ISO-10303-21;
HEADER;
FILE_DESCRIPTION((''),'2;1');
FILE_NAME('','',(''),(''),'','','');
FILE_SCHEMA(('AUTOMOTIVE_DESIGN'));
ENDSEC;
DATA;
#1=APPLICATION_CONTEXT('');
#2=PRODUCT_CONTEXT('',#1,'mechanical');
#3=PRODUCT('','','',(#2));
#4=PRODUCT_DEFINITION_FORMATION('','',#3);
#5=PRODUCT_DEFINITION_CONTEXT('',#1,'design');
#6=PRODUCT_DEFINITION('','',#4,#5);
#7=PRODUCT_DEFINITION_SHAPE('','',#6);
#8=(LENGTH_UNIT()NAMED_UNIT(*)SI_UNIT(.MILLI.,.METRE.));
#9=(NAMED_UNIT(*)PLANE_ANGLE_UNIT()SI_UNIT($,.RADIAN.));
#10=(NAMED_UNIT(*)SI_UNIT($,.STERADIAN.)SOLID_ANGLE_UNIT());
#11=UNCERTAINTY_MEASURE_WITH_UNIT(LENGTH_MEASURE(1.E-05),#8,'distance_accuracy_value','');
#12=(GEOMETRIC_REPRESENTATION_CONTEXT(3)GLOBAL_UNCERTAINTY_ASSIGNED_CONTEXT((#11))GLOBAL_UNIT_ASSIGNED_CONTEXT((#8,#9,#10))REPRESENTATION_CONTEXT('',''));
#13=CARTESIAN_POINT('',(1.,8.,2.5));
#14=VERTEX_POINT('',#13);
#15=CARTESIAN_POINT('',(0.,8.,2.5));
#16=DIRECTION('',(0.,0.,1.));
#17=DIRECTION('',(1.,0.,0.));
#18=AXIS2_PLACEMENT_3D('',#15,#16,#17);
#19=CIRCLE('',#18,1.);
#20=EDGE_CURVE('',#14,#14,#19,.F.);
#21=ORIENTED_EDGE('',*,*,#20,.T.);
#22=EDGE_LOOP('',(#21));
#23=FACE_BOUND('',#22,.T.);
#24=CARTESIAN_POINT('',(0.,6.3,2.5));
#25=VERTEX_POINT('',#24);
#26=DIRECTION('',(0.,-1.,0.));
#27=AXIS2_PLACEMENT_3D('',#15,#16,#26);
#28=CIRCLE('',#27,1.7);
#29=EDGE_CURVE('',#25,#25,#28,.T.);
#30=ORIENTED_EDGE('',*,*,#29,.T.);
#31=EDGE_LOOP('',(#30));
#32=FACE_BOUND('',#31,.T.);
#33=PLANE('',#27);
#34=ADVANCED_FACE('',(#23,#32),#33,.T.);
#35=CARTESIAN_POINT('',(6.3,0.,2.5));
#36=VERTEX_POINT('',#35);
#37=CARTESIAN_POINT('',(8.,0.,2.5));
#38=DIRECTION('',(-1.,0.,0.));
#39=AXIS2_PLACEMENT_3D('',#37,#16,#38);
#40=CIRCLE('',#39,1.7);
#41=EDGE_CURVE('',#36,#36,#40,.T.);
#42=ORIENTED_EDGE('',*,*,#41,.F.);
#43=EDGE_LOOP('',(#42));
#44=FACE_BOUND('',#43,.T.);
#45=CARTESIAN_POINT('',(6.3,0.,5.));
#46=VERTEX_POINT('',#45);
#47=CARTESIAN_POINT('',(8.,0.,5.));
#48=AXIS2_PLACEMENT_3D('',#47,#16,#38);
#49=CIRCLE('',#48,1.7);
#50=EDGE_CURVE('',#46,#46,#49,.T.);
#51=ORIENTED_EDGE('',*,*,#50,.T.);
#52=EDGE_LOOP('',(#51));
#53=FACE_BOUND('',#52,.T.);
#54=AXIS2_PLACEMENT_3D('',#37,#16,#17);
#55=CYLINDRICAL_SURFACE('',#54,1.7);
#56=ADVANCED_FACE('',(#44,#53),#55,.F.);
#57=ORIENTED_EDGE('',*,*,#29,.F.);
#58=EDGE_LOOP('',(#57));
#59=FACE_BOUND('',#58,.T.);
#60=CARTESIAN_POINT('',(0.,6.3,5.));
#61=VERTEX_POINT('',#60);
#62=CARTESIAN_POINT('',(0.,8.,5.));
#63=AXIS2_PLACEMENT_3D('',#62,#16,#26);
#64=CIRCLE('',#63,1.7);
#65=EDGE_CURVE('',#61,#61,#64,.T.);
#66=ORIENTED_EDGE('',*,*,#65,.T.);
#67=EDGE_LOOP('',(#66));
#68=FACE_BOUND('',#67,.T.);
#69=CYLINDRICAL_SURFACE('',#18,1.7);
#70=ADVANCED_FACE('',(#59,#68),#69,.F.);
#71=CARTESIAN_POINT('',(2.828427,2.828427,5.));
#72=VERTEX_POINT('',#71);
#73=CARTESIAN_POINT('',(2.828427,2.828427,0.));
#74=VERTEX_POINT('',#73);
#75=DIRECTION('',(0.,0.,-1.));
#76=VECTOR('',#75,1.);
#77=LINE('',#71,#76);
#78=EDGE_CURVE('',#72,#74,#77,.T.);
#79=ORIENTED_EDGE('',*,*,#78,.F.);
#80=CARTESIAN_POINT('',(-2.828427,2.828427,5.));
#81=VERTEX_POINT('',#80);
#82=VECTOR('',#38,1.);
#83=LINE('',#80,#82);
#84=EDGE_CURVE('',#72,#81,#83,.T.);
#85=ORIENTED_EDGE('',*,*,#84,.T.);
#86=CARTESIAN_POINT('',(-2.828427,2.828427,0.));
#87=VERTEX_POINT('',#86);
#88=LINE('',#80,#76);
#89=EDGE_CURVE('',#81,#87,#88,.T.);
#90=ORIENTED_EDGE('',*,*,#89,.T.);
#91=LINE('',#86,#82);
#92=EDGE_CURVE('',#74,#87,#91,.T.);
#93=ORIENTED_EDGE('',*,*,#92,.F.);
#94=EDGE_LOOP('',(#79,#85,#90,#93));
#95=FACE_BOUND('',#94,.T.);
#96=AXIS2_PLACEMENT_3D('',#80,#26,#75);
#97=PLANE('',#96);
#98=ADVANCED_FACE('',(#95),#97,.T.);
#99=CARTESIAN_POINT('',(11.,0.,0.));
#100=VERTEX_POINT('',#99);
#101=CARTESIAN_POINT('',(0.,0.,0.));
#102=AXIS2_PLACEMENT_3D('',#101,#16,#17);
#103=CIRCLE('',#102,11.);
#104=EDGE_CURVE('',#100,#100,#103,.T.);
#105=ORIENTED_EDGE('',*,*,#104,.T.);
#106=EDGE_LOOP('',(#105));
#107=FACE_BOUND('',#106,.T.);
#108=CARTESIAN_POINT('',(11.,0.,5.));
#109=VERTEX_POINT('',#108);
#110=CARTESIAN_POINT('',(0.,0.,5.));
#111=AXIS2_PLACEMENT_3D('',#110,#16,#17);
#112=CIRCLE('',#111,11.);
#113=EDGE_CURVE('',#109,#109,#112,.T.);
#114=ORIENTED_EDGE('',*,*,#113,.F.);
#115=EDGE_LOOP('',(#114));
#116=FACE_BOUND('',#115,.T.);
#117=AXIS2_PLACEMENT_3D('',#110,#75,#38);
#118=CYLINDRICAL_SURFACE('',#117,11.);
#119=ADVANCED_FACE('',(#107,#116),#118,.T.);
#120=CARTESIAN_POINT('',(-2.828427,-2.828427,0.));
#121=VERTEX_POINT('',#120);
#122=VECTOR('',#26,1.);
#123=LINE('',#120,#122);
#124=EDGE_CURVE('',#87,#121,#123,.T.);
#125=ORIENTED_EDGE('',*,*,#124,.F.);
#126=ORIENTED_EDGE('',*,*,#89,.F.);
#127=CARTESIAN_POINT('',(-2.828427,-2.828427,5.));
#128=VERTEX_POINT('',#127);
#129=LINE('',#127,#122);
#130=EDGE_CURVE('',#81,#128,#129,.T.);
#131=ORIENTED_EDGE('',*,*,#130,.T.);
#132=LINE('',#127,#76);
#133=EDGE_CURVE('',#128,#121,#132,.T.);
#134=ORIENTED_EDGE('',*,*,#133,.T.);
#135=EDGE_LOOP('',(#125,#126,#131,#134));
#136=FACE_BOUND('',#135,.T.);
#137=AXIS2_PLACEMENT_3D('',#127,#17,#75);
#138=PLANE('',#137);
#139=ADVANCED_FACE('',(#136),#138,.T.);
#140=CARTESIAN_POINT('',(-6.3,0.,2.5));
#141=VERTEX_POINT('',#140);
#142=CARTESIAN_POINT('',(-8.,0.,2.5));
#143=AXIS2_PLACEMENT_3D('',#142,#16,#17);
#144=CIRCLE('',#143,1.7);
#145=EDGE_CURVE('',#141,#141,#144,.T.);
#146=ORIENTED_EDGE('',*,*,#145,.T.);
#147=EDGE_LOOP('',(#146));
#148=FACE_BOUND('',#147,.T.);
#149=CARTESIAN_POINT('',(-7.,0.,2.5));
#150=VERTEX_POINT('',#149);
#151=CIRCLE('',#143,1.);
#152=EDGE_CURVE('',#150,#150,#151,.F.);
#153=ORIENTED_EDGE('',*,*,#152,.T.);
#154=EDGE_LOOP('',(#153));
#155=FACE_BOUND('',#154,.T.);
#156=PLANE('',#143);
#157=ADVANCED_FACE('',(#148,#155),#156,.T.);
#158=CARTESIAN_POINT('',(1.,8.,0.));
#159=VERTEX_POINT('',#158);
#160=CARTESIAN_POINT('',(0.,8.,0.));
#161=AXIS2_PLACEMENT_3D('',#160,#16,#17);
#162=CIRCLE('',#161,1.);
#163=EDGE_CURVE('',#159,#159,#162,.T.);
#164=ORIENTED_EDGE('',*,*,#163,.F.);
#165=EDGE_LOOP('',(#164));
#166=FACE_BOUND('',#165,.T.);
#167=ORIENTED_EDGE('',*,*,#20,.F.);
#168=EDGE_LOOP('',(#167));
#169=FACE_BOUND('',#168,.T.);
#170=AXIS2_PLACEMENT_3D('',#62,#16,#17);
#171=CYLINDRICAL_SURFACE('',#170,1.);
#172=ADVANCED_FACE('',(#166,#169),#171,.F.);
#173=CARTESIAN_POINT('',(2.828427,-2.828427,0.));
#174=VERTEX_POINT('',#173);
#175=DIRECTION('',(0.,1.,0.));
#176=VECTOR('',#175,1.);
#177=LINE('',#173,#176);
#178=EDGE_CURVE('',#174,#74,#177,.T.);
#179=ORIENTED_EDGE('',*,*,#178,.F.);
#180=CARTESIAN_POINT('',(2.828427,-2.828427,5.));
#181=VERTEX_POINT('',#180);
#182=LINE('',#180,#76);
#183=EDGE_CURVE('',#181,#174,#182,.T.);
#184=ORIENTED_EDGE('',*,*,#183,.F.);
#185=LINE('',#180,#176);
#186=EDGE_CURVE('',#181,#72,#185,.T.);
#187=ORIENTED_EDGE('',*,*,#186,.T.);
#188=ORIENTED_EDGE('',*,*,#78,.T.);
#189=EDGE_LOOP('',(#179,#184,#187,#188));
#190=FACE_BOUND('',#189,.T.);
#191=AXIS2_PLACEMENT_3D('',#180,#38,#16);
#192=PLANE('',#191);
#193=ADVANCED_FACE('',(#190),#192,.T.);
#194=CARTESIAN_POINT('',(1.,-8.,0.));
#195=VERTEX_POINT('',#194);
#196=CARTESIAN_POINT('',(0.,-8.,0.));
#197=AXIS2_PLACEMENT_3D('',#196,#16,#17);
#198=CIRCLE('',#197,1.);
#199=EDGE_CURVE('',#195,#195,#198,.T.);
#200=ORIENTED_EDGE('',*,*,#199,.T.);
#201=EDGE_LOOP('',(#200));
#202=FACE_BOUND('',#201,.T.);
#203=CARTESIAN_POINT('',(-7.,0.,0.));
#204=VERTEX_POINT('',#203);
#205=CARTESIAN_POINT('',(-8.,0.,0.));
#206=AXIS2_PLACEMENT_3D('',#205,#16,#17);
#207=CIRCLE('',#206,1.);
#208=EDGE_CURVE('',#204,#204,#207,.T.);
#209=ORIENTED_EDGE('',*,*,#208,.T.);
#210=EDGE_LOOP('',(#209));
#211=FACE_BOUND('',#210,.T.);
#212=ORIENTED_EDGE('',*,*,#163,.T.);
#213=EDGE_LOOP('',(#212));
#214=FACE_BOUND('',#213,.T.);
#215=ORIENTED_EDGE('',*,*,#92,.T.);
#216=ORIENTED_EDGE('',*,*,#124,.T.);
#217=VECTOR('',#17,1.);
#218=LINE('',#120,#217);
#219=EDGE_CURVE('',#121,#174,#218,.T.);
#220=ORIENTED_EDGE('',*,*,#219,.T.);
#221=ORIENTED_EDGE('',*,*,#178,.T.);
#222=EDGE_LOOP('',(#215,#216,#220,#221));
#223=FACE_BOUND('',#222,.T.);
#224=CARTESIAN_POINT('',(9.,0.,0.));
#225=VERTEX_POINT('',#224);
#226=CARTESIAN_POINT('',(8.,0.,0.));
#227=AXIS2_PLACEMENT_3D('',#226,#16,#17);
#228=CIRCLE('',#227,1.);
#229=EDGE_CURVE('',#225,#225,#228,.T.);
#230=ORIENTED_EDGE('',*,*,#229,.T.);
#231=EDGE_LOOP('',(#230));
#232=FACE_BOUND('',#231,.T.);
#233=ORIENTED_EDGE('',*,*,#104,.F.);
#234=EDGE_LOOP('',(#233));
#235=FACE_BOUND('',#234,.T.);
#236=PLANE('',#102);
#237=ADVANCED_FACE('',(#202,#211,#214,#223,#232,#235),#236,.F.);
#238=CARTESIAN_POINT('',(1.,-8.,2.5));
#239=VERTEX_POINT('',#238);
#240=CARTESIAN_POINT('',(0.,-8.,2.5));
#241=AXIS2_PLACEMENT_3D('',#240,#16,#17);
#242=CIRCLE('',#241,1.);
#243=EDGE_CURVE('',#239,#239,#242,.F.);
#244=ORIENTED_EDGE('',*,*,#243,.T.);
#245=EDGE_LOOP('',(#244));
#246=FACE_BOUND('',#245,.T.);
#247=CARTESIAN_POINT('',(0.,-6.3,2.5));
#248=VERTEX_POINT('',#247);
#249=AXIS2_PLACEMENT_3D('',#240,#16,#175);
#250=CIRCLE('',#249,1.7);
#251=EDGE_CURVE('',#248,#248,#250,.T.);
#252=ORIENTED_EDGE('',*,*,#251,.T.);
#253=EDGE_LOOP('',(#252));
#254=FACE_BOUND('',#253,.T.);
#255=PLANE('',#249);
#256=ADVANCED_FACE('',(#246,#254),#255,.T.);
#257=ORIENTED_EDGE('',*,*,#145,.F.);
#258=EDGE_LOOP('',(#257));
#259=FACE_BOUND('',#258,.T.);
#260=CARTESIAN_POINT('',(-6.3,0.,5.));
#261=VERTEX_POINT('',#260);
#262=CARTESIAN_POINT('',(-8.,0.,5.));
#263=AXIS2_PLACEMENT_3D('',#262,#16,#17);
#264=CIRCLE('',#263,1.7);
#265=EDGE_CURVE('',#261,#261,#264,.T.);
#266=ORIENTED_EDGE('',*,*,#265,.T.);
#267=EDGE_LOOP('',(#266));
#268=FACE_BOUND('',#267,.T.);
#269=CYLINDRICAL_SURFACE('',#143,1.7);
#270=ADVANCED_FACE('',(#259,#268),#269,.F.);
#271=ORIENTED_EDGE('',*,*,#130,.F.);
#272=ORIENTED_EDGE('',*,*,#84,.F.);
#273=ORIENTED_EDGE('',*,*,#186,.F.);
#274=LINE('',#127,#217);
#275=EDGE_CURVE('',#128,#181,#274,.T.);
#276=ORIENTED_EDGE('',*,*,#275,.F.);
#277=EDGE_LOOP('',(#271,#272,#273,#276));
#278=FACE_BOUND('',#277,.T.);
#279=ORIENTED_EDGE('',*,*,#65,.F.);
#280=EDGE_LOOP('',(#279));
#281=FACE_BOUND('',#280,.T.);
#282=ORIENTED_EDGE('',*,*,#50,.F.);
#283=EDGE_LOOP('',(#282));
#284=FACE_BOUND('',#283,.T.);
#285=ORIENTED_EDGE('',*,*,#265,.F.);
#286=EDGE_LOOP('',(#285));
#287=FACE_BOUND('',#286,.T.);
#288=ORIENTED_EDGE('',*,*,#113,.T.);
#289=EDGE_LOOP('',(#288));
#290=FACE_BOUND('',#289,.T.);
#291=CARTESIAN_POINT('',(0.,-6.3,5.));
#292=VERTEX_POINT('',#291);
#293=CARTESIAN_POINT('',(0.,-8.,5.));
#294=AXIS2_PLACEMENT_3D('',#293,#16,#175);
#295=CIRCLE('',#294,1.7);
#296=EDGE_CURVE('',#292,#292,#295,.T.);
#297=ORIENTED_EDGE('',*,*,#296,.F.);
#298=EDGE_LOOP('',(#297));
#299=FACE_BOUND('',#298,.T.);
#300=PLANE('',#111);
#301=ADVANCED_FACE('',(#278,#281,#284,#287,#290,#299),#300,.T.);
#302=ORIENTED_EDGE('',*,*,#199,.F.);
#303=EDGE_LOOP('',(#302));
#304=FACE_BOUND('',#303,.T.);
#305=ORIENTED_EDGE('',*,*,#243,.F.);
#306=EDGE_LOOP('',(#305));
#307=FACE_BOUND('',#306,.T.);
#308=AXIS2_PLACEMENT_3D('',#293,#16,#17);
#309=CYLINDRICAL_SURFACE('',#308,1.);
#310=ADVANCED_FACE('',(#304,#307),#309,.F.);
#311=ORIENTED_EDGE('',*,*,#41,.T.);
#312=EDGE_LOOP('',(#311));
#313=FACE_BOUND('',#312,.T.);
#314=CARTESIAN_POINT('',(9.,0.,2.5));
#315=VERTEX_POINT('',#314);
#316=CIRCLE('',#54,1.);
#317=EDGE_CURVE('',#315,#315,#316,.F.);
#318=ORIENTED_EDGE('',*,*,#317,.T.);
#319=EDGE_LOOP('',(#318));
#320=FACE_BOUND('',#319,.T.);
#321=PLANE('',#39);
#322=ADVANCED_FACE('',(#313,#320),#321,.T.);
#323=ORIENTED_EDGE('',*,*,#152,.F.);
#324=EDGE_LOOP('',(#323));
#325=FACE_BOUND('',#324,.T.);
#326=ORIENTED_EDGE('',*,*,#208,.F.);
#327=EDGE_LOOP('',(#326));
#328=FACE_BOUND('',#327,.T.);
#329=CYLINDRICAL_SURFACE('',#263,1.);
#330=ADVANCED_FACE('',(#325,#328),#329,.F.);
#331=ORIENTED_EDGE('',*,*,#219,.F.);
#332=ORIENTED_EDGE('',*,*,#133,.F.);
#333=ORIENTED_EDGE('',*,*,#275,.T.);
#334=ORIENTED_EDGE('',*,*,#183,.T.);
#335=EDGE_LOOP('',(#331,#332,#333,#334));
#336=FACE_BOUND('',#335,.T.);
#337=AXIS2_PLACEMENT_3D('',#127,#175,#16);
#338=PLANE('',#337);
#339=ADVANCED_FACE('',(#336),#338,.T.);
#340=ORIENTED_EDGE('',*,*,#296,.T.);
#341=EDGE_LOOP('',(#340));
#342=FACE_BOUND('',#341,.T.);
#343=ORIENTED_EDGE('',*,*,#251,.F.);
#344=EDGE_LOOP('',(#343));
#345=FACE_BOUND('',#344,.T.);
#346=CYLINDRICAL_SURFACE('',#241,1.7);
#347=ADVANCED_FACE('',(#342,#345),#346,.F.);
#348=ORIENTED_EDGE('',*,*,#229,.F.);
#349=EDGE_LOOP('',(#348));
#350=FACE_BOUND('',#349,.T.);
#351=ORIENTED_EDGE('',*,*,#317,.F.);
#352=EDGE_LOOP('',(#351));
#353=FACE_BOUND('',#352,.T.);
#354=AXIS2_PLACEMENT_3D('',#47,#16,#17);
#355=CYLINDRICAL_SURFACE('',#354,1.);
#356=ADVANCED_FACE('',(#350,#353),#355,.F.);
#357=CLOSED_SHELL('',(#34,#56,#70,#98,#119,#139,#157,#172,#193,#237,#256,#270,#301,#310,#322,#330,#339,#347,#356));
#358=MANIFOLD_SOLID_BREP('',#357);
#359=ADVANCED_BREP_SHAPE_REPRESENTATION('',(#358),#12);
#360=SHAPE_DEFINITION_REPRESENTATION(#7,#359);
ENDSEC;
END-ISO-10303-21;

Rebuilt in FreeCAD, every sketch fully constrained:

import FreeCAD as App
import Part
import Sketcher


def add_polygon(sketch, points):
    """Adds a closed chain of lines whose ends are joined by coincident constraints."""
    first, n = sketch.GeometryCount, len(points)
    for a, b in zip(points, points[1:] + points[:1]):
        sketch.addGeometry(Part.LineSegment(App.Vector(*a, 0), App.Vector(*b, 0)), False)
    for i in range(n):
        sketch.addConstraint(Sketcher.Constraint("Coincident", first + i, 2, first + (i + 1) % n, 1))

doc = App.newDocument("Part")
body = doc.addObject("PartDesign::Body", "Body")

# Sketch on XY plane
sketch1 = doc.addObject("Sketcher::SketchObject", "Sketch")
body.addObject(sketch1)
sketch1.AttachmentSupport = (doc.XY_Plane, [""])
sketch1.MapMode = "FlatFace"
sketch1.addGeometry(Part.Circle(App.Vector(0, 0, 0), App.Vector(0, 0, 1), 11), False)  # 0
add_polygon(sketch1, [(3, 3), (3, -3), (-3, -3), (-3, 3)])  # lines 1-4
sketch1.addConstraint(Sketcher.Constraint("Vertical", 1))
sketch1.addConstraint(Sketcher.Constraint("Horizontal", 2))
sketch1.addConstraint(Sketcher.Constraint("Vertical", 3))
sketch1.addConstraint(Sketcher.Constraint("Horizontal", 4))
sketch1.addConstraint(Sketcher.Constraint("Coincident", 0, 3, -1, 1))
sketch1.addConstraint(Sketcher.Constraint("Symmetric", 1, 2, 3, 2, -1, 1))
sketch1.addConstraint(Sketcher.Constraint("Equal", 4, 1))
sketch1.addConstraint(Sketcher.Constraint("Diameter", 0, 22.0))
sketch1.addConstraint(Sketcher.Constraint("DistanceX", 2, 2, 2, 1, 5.656854))
pad1 = doc.addObject("PartDesign::Pad", "Pad")
body.addObject(pad1)
pad1.Profile = sketch1
pad1.Length = 5

# Sketch on XY plane
sketch2 = doc.addObject("Sketcher::SketchObject", "Sketch001")
body.addObject(sketch2)
sketch2.AttachmentSupport = (doc.XY_Plane, [""])
sketch2.MapMode = "FlatFace"
sketch2.AttachmentOffset = App.Placement(App.Vector(0, 0, 5), App.Rotation())
sketch2.addGeometry(Part.Circle(App.Vector(8, 0, 0), App.Vector(0, 0, 1), 1), False)
sketch2.addGeometry(Part.Circle(App.Vector(0, 8, 0), App.Vector(0, 0, 1), 1), False)
sketch2.addGeometry(Part.Circle(App.Vector(-8, 0, 0), App.Vector(0, 0, 1), 1), False)
sketch2.addGeometry(Part.Circle(App.Vector(0, -8, 0), App.Vector(0, 0, 1), 1), False)
sketch2.addConstraint(Sketcher.Constraint("Equal", 0, 1))
sketch2.addConstraint(Sketcher.Constraint("Equal", 1, 2))
sketch2.addConstraint(Sketcher.Constraint("Equal", 2, 3))
sketch2.addConstraint(Sketcher.Constraint("Symmetric", 0, 3, 2, 3, -1, 1))
sketch2.addConstraint(Sketcher.Constraint("Symmetric", 1, 3, 3, 3, -1, 1))
sketch2.addConstraint(Sketcher.Constraint("PointOnObject", 0, 3, -1))
sketch2.addConstraint(Sketcher.Constraint("PointOnObject", 1, 3, -2))
sketch2.addConstraint(Sketcher.Constraint("Diameter", 0, 2.0))
sketch2.addConstraint(Sketcher.Constraint("DistanceX", -1, 1, 0, 3, 8.0))
sketch2.addConstraint(Sketcher.Constraint("DistanceY", -1, 1, 1, 3, 8.0))
doc.recompute()
hole = doc.addObject("PartDesign::Hole", "Hole")
body.addObject(hole)
hole.Profile = sketch2
hole.ThreadType = "None"
hole.Diameter = 2
hole.DepthType = "ThroughAll"

# Sketch on XY plane
sketch3 = doc.addObject("Sketcher::SketchObject", "Sketch002")
body.addObject(sketch3)
sketch3.AttachmentSupport = (doc.XY_Plane, [""])
sketch3.MapMode = "FlatFace"
sketch3.AttachmentOffset = App.Placement(App.Vector(0, 0, 5), App.Rotation())
sketch3.addGeometry(Part.Circle(App.Vector(-8, 0, 0), App.Vector(0, 0, 1), 1.7), False)
sketch3.addConstraint(Sketcher.Constraint("PointOnObject", 0, 3, -1))
sketch3.addConstraint(Sketcher.Constraint("Diameter", 0, 3.4))
sketch3.addConstraint(Sketcher.Constraint("DistanceX", 0, 3, -1, 1, 8.0))
pocket1 = doc.addObject("PartDesign::Pocket", "Pocket")
body.addObject(pocket1)
pocket1.Profile = sketch3
pocket1.Length = 2.5
doc.recompute()

polarpattern = doc.addObject("PartDesign::PolarPattern", "PolarPattern")
body.addObject(polarpattern)
polarpattern.Originals = [pocket1]
polarpattern.Axis = (doc.Z_Axis, [""])
polarpattern.Angle = 360
polarpattern.Occurrences = 4
body.Tip = polarpattern

doc.recompute()
